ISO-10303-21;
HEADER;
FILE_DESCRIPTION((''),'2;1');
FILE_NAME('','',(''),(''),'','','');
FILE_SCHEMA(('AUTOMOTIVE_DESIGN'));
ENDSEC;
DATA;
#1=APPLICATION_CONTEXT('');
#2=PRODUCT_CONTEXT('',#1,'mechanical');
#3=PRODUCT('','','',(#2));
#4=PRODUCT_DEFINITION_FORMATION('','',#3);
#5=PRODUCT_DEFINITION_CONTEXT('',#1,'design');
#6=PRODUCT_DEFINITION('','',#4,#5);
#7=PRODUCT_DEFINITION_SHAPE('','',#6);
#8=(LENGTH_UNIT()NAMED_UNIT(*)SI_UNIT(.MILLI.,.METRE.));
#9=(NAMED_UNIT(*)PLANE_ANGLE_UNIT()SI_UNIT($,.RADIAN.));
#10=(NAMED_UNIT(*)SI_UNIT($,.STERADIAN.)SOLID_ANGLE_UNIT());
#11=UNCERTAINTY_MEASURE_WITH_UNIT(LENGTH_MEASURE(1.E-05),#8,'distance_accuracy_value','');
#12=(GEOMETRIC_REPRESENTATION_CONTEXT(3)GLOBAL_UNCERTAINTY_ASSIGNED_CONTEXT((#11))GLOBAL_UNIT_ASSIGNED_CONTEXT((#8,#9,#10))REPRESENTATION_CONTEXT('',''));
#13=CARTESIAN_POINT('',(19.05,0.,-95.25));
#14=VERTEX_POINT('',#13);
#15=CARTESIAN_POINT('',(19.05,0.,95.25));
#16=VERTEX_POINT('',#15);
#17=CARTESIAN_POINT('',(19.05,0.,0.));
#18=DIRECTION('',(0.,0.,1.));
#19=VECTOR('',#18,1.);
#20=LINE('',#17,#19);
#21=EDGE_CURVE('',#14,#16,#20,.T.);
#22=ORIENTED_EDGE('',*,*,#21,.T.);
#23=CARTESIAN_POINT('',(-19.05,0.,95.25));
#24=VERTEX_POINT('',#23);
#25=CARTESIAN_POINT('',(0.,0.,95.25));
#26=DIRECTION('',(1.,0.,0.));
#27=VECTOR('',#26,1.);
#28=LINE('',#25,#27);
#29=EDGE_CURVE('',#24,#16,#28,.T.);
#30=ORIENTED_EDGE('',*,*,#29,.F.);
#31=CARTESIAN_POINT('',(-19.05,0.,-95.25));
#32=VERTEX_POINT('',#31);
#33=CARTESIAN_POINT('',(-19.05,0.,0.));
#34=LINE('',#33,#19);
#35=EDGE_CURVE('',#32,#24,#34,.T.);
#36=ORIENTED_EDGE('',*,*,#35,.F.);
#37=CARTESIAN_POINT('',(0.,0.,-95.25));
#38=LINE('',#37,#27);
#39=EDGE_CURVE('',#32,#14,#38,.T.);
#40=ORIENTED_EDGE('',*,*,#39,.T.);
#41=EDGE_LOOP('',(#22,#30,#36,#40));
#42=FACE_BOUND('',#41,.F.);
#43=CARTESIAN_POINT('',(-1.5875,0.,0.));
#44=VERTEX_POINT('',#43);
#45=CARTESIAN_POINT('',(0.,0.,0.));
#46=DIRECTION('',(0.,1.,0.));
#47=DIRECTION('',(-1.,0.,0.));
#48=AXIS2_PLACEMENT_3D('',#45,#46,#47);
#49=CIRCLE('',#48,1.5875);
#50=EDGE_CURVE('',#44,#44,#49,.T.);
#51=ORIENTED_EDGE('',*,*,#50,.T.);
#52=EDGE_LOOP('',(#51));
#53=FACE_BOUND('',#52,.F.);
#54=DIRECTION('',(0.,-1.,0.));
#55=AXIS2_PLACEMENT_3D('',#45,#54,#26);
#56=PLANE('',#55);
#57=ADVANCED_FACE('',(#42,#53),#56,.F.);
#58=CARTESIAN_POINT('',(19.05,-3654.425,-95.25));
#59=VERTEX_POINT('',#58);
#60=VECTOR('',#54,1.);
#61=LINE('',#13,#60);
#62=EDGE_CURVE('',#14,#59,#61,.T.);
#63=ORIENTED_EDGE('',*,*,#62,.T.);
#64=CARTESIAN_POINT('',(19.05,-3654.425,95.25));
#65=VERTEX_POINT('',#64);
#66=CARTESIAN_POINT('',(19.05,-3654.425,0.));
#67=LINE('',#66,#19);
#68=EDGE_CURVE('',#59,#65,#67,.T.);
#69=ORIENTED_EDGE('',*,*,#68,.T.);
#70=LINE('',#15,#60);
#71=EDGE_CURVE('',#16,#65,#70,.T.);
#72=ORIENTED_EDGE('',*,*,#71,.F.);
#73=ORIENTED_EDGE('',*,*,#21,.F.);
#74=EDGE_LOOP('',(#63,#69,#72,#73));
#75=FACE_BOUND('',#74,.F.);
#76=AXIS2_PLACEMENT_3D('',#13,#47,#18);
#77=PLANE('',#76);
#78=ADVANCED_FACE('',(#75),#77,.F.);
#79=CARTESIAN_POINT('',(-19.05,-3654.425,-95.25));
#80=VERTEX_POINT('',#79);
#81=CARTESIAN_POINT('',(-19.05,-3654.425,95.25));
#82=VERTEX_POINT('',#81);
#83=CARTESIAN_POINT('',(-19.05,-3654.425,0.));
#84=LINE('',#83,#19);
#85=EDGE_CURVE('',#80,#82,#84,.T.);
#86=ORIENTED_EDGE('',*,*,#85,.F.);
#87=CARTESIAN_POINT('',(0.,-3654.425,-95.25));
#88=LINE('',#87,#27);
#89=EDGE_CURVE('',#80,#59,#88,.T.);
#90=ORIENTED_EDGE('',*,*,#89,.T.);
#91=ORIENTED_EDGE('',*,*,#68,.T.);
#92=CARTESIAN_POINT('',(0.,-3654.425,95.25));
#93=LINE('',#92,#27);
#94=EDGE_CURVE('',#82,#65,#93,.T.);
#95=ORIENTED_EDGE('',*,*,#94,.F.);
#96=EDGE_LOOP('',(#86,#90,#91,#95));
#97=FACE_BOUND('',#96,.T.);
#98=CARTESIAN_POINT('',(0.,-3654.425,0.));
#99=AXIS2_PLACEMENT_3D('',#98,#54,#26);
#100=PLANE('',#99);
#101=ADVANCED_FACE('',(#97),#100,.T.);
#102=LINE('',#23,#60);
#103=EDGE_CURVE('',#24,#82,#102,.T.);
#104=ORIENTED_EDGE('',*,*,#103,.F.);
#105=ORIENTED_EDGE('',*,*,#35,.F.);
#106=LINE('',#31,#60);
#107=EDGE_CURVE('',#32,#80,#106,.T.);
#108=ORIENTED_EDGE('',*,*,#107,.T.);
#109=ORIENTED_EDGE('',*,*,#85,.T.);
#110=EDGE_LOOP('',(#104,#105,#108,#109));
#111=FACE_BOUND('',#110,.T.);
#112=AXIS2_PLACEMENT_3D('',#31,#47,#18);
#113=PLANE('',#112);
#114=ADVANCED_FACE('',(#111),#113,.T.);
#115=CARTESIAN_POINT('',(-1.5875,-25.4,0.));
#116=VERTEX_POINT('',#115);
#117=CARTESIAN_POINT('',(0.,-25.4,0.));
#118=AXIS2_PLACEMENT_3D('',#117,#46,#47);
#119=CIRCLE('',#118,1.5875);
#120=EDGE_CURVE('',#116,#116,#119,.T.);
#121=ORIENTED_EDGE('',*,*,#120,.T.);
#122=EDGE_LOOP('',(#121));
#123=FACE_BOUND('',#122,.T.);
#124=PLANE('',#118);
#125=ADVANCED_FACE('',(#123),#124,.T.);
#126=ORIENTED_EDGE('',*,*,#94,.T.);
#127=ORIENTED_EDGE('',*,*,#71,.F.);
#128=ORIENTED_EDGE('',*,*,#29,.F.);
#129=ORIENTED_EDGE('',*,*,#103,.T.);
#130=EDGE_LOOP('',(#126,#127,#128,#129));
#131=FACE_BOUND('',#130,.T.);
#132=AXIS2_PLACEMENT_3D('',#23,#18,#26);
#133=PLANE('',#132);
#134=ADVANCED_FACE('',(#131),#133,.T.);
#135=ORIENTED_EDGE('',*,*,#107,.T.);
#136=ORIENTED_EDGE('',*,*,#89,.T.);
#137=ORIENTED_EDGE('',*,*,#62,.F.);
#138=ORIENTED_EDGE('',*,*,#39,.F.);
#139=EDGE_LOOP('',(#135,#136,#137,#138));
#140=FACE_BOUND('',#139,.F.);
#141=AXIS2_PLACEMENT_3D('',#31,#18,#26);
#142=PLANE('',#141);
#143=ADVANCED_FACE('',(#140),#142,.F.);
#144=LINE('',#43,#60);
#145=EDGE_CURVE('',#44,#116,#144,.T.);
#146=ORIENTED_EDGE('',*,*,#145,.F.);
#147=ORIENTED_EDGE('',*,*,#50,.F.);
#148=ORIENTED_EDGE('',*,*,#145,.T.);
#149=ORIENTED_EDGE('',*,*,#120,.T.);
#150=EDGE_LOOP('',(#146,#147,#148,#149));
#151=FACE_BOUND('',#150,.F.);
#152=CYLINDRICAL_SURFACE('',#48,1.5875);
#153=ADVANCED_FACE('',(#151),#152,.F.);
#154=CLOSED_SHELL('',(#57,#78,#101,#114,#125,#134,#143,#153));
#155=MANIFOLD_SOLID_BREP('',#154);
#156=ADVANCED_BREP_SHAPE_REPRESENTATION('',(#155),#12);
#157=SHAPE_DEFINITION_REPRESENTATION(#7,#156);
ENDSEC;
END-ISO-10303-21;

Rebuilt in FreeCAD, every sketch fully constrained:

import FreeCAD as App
import Part
import Sketcher

V = App.Vector
Q = App.Units.Quantity


def add_polygon(sketch, points):
    """Adds a closed chain of lines whose ends are joined by coincident constraints."""
    first, n = sketch.GeometryCount, len(points)
    for a, b in zip(points, points[1:] + points[:1]):
        sketch.addGeometry(Part.LineSegment(App.Vector(*a, 0), App.Vector(*b, 0)), False)
    for i in range(n):
        sketch.addConstraint(Sketcher.Constraint("Coincident", first + i, 2, first + (i + 1) % n, 1))

doc = App.newDocument("Part")
body = doc.addObject("PartDesign::Body", "Body")

sketch1 = body.newObject("Sketcher::SketchObject", "Sketch")
sketch1.AttachmentSupport = (doc.getObject("XZ_Plane"), [""])
sketch1.MapMode = "FlatFace"
add_polygon(sketch1, [(-19, 95), (-19, -95), (19, -95), (19, 95)])
sketch1.addConstraint([
    Sketcher.Constraint("Vertical", 0),
    Sketcher.Constraint("Horizontal", 1),
    Sketcher.Constraint("Vertical", 2),
    Sketcher.Constraint("Horizontal", 3),
    Sketcher.Constraint("Symmetric", 0, 2, 2, 2, -1, 1),
    Sketcher.Constraint("DistanceX", 1, 1, 1, 2, Q("1.5 in")),
    Sketcher.Constraint("DistanceY", 0, 2, 0, 1, Q("7.5 in")),
])
pad1 = body.newObject("PartDesign::Pad", "Pad")
pad1.Profile = sketch1
pad1.Length = Q("143.875 in")

sketch2 = body.newObject("Sketcher::SketchObject", "Sketch001")
sketch2.AttachmentSupport = (doc.getObject("XZ_Plane"), [""])
sketch2.MapMode = "FlatFace"
sketch2.addGeometry(Part.Circle(V(0, 0, 0), V(0, 0, 1), 1.6), False)
sketch2.addConstraint([
    Sketcher.Constraint("Coincident", 0, 3, -1, 1),
    Sketcher.Constraint("Diameter", 0, Q("0.125 in")),
])
pocket1 = body.newObject("PartDesign::Pocket", "Pocket")
pocket1.Profile = sketch2
pocket1.Length = Q("1 in")
pocket1.Reversed = True

doc.recompute()
